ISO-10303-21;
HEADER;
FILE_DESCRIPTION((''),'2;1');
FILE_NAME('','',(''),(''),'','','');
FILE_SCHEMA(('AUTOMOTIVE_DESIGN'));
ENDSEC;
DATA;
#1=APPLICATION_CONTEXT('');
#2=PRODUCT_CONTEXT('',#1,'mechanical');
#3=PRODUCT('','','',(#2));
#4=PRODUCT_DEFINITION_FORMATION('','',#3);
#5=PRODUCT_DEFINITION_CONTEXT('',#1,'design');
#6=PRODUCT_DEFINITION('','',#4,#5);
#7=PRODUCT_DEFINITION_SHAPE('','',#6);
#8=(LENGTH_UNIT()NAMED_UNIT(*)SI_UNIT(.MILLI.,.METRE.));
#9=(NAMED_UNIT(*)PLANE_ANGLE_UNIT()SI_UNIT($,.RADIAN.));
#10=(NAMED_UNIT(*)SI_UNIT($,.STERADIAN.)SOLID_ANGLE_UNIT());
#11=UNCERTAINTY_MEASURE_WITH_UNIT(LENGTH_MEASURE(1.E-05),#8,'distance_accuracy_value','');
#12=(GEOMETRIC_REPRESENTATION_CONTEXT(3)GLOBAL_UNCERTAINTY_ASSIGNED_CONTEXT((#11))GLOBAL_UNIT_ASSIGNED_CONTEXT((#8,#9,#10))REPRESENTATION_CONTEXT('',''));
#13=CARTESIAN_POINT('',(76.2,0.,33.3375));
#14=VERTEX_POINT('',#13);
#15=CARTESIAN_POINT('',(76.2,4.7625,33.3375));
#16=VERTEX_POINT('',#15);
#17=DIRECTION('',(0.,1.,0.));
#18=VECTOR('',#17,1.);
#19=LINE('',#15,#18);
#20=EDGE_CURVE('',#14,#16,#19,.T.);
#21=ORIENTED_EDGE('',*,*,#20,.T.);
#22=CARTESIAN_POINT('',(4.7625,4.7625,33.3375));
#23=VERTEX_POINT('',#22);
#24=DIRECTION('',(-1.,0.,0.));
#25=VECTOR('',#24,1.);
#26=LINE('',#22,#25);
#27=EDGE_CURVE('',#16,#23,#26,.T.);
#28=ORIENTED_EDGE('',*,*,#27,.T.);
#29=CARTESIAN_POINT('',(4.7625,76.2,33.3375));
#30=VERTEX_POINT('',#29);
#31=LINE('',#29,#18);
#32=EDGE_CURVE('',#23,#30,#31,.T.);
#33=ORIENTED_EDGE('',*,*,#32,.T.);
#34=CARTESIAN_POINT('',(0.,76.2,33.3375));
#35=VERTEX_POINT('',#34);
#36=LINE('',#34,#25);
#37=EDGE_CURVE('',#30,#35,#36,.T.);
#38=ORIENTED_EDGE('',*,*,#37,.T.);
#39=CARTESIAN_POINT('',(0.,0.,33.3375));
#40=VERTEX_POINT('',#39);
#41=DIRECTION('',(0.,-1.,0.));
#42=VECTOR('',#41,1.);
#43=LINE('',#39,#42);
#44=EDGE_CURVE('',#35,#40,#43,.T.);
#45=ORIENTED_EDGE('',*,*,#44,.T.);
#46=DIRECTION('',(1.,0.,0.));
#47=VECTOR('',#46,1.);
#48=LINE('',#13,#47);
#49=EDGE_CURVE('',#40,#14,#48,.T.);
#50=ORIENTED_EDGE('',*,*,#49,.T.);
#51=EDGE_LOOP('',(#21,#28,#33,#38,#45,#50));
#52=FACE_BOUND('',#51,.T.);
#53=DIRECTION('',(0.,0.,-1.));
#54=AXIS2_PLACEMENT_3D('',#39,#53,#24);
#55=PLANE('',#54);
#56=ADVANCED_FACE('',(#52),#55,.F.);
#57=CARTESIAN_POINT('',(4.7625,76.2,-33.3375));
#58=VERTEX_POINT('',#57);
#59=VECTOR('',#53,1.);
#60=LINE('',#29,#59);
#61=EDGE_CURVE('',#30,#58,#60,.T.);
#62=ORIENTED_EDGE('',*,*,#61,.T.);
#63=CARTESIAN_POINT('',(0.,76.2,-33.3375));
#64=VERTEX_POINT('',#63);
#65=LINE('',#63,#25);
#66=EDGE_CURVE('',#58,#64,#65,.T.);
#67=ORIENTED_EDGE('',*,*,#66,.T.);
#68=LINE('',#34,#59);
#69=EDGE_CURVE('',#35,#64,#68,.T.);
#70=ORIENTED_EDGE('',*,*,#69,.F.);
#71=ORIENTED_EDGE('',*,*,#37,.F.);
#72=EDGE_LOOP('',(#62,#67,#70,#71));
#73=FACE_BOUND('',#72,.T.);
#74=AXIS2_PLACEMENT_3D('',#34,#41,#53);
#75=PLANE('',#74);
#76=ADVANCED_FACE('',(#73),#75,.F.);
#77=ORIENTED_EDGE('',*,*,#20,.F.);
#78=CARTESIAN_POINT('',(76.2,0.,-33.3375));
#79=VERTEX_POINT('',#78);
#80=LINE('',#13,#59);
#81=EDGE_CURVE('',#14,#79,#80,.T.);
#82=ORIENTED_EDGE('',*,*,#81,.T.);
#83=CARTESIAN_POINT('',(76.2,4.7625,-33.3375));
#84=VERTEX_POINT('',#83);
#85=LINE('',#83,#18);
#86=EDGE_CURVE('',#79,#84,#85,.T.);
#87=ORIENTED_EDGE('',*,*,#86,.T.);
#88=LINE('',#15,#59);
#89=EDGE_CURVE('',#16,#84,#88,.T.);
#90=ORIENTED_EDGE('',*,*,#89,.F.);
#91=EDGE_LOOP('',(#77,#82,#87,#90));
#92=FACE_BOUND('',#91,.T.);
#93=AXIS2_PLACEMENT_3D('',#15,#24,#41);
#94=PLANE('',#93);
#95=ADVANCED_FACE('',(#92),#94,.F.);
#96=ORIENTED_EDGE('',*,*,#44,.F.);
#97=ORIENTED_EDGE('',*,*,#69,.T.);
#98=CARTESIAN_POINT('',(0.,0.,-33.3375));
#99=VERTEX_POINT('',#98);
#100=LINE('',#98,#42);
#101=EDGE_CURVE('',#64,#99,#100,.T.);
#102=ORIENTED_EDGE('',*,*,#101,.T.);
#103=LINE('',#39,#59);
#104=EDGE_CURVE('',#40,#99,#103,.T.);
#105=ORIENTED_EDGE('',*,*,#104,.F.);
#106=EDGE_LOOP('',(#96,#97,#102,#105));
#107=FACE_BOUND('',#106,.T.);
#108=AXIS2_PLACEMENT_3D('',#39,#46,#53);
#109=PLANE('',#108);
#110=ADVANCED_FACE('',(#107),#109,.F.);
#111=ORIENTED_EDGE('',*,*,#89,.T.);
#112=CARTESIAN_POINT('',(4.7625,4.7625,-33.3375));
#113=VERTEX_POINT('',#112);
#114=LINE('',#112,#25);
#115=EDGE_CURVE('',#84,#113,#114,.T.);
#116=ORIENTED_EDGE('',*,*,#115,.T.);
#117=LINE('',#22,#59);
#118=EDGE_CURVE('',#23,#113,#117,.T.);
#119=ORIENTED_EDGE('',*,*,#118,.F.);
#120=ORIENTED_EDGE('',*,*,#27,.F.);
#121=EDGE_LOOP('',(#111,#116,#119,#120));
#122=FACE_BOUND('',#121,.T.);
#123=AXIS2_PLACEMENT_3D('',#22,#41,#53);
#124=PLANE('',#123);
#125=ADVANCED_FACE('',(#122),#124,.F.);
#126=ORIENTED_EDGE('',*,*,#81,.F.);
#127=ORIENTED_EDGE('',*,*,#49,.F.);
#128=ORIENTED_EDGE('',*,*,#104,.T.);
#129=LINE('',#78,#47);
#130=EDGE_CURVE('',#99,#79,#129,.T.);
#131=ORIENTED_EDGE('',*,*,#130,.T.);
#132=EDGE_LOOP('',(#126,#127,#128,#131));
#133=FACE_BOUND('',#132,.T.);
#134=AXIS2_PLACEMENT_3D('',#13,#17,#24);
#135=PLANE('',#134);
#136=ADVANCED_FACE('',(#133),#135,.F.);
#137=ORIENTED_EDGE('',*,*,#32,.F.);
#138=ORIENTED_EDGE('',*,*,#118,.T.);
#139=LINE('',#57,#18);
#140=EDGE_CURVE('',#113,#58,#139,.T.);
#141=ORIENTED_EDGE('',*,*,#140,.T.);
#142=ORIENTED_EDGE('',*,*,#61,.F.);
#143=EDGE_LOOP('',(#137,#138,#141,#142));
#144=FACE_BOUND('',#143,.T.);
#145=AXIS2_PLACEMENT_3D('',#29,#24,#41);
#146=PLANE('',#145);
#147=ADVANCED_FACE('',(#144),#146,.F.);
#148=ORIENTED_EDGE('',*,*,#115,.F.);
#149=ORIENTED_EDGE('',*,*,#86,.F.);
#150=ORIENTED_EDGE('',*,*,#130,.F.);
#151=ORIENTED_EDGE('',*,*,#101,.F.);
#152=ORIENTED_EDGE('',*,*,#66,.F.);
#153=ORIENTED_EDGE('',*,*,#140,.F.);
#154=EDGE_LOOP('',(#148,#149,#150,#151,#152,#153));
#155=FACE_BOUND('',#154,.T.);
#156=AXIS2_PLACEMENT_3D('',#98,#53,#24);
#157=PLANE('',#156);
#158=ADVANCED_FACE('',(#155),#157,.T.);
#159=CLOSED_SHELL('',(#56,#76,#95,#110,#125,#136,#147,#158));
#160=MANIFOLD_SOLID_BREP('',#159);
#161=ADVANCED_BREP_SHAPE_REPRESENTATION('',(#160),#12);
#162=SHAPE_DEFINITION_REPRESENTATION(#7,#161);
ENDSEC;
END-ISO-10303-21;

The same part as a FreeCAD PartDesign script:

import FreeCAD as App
import Part
import Sketcher
Q = App.Units.Quantity


def add_polygon(sketch, points):
    """Adds a closed chain of lines whose ends are joined by coincident constraints."""
    first, n = sketch.GeometryCount, len(points)
    for a, b in zip(points, points[1:] + points[:1]):
        sketch.addGeometry(Part.LineSegment(App.Vector(*a, 0), App.Vector(*b, 0)), False)
    for i in range(n):
        sketch.addConstraint(Sketcher.Constraint("Coincident", first + i, 2, first + (i + 1) % n, 1))

doc = App.newDocument("Part")
body = doc.addObject("PartDesign::Body", "Body")

# Sketch on XY plane
sketch1 = doc.addObject("Sketcher::SketchObject", "Sketch")
body.addObject(sketch1)
sketch1.AttachmentSupport = (doc.XY_Plane, [""])
sketch1.MapMode = "FlatFace"
add_polygon(sketch1, [(0, 76.2), (0, 0), (76.2, 0), (76.2, 4.7625), (4.7625, 4.7625), (4.7625, 76.2)])  # lines 0-5
sketch1.addConstraint([
    Sketcher.Constraint("Vertical", 0),
    Sketcher.Constraint("Horizontal", 1),
    Sketcher.Constraint("Vertical", 2),
    Sketcher.Constraint("Horizontal", 3),
    Sketcher.Constraint("Vertical", 4),
    Sketcher.Constraint("Horizontal", 5),
    Sketcher.Constraint("Coincident", 0, 2, -1, 1),
    Sketcher.Constraint("Equal", 1, 0),
    Sketcher.Constraint("Equal", 5, 2),
    Sketcher.Constraint("DistanceX", 1, 1, 1, 2, Q("3 in")),
    Sketcher.Constraint("DistanceX", 3, 2, 3, 1, Q("2.8125 in")),
])
pad1 = doc.addObject("PartDesign::Pad", "Pad")
body.addObject(pad1)
pad1.Profile = sketch1
pad1.Length = Q("2.625 in")
pad1.Midplane = True

doc.recompute()
